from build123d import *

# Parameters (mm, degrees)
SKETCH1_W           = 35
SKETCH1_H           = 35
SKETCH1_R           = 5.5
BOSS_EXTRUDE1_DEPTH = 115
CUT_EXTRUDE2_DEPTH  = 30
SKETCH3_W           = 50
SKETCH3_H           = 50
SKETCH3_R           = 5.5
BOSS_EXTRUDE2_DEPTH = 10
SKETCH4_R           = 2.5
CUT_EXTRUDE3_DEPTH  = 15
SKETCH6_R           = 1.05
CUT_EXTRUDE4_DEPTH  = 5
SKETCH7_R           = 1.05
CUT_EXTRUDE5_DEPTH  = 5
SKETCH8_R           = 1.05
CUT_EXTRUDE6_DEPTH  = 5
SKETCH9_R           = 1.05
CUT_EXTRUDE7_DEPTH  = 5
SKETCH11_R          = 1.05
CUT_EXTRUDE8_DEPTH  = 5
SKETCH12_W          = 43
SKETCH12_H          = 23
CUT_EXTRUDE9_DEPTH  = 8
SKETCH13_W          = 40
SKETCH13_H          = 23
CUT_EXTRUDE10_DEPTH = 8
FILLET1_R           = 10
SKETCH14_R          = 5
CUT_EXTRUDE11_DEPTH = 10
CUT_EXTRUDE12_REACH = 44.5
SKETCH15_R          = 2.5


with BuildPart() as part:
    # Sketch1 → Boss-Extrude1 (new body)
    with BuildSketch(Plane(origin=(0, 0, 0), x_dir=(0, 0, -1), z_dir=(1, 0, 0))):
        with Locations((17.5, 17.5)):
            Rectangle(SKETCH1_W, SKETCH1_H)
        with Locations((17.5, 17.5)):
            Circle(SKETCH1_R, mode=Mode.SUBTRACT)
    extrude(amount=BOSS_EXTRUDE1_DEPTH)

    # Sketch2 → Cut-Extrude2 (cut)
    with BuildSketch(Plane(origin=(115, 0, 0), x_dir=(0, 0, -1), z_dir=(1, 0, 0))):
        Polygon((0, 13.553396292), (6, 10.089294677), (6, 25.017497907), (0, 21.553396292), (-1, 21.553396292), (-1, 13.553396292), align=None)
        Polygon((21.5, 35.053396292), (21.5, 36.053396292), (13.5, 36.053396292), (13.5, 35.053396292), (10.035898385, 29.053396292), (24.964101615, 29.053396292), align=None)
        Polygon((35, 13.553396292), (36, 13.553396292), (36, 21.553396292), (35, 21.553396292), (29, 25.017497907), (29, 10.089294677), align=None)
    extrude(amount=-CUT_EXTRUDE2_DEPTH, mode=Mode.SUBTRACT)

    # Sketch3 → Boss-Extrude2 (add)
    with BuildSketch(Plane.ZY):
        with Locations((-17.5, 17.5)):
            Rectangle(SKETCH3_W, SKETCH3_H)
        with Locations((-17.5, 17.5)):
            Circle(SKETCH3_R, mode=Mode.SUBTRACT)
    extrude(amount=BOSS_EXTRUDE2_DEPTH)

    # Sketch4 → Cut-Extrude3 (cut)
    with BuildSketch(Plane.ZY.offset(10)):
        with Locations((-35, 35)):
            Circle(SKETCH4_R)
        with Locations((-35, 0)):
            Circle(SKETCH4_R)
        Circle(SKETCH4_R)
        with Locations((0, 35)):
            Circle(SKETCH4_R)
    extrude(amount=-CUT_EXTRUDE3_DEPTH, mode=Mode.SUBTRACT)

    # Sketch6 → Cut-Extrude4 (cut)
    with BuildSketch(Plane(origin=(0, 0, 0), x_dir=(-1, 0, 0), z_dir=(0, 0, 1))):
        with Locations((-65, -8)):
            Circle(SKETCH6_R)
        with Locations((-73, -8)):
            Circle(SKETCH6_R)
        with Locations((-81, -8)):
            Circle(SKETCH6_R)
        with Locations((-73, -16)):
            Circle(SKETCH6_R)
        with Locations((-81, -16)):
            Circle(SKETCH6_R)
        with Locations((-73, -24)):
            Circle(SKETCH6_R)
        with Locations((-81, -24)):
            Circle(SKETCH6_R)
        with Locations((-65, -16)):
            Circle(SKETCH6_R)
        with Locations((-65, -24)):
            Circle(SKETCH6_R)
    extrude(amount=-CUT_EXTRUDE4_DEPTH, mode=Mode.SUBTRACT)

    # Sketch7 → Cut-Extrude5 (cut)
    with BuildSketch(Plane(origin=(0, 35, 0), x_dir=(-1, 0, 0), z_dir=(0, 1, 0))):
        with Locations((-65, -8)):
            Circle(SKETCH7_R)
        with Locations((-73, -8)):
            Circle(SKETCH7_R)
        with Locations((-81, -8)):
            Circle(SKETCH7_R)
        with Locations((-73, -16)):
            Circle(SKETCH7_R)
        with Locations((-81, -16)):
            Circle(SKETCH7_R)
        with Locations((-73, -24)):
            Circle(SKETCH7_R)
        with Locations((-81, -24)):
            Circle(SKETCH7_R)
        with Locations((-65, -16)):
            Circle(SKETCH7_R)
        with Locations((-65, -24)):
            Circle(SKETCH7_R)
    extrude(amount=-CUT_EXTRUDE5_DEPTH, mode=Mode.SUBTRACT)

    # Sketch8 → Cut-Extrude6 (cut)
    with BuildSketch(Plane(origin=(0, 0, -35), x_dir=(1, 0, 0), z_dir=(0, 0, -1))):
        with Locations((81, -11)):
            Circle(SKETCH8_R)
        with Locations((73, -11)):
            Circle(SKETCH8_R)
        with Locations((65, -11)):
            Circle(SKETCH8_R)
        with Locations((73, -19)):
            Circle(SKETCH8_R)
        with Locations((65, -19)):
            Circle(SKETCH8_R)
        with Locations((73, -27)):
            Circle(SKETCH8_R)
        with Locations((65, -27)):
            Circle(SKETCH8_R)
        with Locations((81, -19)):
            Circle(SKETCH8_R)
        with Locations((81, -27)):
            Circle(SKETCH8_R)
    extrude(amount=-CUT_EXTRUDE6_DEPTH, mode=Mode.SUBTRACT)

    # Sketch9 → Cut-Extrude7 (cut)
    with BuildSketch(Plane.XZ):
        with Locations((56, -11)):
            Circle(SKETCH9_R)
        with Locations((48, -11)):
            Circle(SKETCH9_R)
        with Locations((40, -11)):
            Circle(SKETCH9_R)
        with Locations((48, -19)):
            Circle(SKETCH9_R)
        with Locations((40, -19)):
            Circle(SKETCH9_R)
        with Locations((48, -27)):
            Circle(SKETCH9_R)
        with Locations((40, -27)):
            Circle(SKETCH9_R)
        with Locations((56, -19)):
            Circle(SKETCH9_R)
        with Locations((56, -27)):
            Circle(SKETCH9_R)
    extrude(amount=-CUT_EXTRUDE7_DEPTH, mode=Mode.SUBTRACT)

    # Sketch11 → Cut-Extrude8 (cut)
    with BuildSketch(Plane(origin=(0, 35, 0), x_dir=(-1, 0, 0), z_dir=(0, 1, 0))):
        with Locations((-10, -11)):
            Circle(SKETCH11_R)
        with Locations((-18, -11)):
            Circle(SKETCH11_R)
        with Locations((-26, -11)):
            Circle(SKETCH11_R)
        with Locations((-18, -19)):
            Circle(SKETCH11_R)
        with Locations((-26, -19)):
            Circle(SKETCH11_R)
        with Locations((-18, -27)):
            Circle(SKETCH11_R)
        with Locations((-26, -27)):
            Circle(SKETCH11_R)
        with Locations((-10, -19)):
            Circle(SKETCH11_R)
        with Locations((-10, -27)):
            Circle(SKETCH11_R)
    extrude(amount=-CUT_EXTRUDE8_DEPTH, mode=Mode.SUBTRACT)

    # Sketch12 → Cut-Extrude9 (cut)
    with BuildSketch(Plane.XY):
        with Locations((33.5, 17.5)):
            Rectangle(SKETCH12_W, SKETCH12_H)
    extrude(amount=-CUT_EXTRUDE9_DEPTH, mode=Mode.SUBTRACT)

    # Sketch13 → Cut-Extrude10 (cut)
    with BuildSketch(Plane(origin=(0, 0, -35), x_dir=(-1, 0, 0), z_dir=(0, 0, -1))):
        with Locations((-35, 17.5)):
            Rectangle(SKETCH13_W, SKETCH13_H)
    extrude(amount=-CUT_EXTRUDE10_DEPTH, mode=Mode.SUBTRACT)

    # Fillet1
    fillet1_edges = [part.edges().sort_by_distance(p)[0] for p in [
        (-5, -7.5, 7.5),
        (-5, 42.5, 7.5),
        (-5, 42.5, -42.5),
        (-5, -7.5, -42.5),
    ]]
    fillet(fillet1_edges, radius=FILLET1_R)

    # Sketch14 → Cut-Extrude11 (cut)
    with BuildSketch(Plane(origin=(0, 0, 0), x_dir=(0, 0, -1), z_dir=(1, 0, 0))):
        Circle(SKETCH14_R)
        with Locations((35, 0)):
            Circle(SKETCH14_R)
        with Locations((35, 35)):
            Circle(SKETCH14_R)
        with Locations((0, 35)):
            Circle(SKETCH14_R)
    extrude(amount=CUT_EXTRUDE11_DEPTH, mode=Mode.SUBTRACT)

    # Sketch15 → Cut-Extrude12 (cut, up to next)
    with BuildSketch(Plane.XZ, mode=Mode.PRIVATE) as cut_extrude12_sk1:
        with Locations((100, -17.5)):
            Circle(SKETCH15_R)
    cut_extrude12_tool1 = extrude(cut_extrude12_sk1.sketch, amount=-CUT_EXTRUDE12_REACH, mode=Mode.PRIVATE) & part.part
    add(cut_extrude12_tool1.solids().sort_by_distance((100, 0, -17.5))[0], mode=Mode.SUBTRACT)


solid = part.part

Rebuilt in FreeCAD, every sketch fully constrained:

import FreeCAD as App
import Part
import Sketcher

V = App.Vector
Q = App.Units.Quantity


def edges_at(feature, points):
    """Names of the edges that pass closest to the given points."""
    edges = feature.Shape.Edges
    near = lambda p: min(range(len(edges)), key=lambda i: edges[i].distToShape(Part.Vertex(*p))[0])
    return sorted({f"Edge{near(p) + 1}" for p in points})

doc = App.newDocument("Part")
params = doc.addObject("Spreadsheet::Sheet", "Params")
for row, (alias, value) in enumerate([
    ("sketch1_diameter", "11 mm"),
    ("sketch1_width", "35 mm"),
    ("pad1_length", "115 mm"),
    ("sketch2_width", "8 mm"),
    ("sketch2_width2", "1 mm"),
    ("pocket1_length", "30 mm"),
    ("sketch3_diameter", "11 mm"),
    ("sketch3_width", "50 mm"),
    ("pad2_length", "10 mm"),
    ("sketch4_diameter", "5 mm"),
    ("pocket2_length", "15 mm"),
    ("sketch5_diameter", "2.1 mm"),
    ("pocket3_length", "5 mm"),
    ("sketch6_diameter", "2.1 mm"),
    ("pocket4_length", "5 mm"),
    ("sketch7_diameter", "2.1 mm"),
    ("pocket5_length", "5 mm"),
    ("sketch8_diameter", "2.1 mm"),
    ("pocket6_length", "5 mm"),
    ("sketch9_diameter", "2.1 mm"),
    ("pocket7_length", "5 mm"),
    ("sketch10_width", "43 mm"),
    ("sketch10_height", "23 mm"),
    ("pocket8_length", "8 mm"),
    ("sketch11_width", "40 mm"),
    ("sketch11_height", "23 mm"),
    ("pocket9_length", "8 mm"),
    ("fillet_radius", "10 mm"),
    ("sketch12_diameter", "10 mm"),
    ("pocket10_length", "10 mm"),
    ("sketch13_diameter", "5 mm"),
], start=1):
    params.set(f"A{row}", alias)
    params.set(f"B{row}", "=" + value)
    params.setAlias(f"B{row}", alias)

body = doc.addObject("PartDesign::Body", "Body")

# Sketch on YZ plane
sketch1 = doc.addObject("Sketcher::SketchObject", "Sketch")
body.addObject(sketch1)
sketch1.AttachmentSupport = (doc.YZ_Plane, [""])
sketch1.MapMode = "FlatFace"
sketch1.addGeometry(Part.LineSegment(V(35, 0, 0), V(0, 0, 0)), False)
sketch1.addGeometry(Part.LineSegment(V(0, 0, 0), V(0, -35, 0)), False)
sketch1.addGeometry(Part.LineSegment(V(0, -35, 0), V(35, -35, 0)), False)
sketch1.addGeometry(Part.LineSegment(V(35, -35, 0), V(35, 0, 0)), False)
sketch1.addGeometry(Part.Circle(V(17.5, -17.5, 0), V(0, 0, 1), 5.5), False)
sketch1.addConstraint(Sketcher.Constraint("Coincident", 0, 2, 1, 1))
sketch1.addConstraint(Sketcher.Constraint("Coincident", 1, 2, 2, 1))
sketch1.addConstraint(Sketcher.Constraint("Coincident", 2, 2, 3, 1))
sketch1.addConstraint(Sketcher.Constraint("Coincident", 3, 2, 0, 1))
sketch1.addConstraint(Sketcher.Constraint("Horizontal", 0))
sketch1.addConstraint(Sketcher.Constraint("Vertical", 1))
sketch1.addConstraint(Sketcher.Constraint("Horizontal", 2))
sketch1.addConstraint(Sketcher.Constraint("Vertical", 3))
sketch1.addConstraint(Sketcher.Constraint("Coincident", 0, 2, -1, 1))
sketch1.addConstraint(Sketcher.Constraint("Equal", 2, 1))
sketch1.addConstraint(Sketcher.Constraint("Diameter", 4, 11.0))
sketch1.addConstraint(Sketcher.Constraint("DistanceX", 0, 2, 0, 1, 35.0))
sketch1.addConstraint(Sketcher.Constraint("DistanceX", -1, 1, 4, 3, 17.5))
sketch1.addConstraint(Sketcher.Constraint("DistanceY", 4, 3, -1, 1, 17.5))
sketch1.setExpression("Constraints[10]", "Params.sketch1_diameter")
sketch1.setExpression("Constraints[11]", "Params.sketch1_width")
pad1 = doc.addObject("PartDesign::Pad", "Pad")
body.addObject(pad1)
pad1.Profile = sketch1
pad1.setExpression("Length", "Params.pad1_length")

# Sketch on YZ plane
sketch2 = doc.addObject("Sketcher::SketchObject", "Sketch001")
body.addObject(sketch2)
sketch2.AttachmentSupport = (doc.YZ_Plane, [""])
sketch2.MapMode = "FlatFace"
sketch2.AttachmentOffset = App.Placement(V(0, 0, 115), App.Rotation())
sketch2.addGeometry(Part.LineSegment(V(13.553396, 0, 0), V(10.089295, -6, 0)), False)
sketch2.addGeometry(Part.LineSegment(V(10.089295, -6, 0), V(25.017498, -6, 0)), False)
sketch2.addGeometry(Part.LineSegment(V(25.017498, -6, 0), V(21.553396, 0, 0)), False)
sketch2.addGeometry(Part.LineSegment(V(21.553396, 0, 0), V(21.553396, 1, 0)), False)
sketch2.addGeometry(Part.LineSegment(V(21.553396, 1, 0), V(13.553396, 1, 0)), False)
sketch2.addGeometry(Part.LineSegment(V(13.553396, 1, 0), V(13.553396, 0, 0)), False)
sketch2.addGeometry(Part.LineSegment(V(35.053396, -21.5, 0), V(36.053396, -21.5, 0)), False)
sketch2.addGeometry(Part.LineSegment(V(36.053396, -21.5, 0), V(36.053396, -13.5, 0)), False)
sketch2.addGeometry(Part.LineSegment(V(36.053396, -13.5, 0), V(35.053396, -13.5, 0)), False)
sketch2.addGeometry(Part.LineSegment(V(35.053396, -13.5, 0), V(29.053396, -10.035898, 0)), False)
sketch2.addGeometry(Part.LineSegment(V(29.053396, -10.035898, 0), V(29.053396, -24.964102, 0)), False)
sketch2.addGeometry(Part.LineSegment(V(29.053396, -24.964102, 0), V(35.053396, -21.5, 0)), False)
sketch2.addGeometry(Part.LineSegment(V(13.553396, -35, 0), V(13.553396, -36, 0)), False)
sketch2.addGeometry(Part.LineSegment(V(13.553396, -36, 0), V(21.553396, -36, 0)), False)
sketch2.addGeometry(Part.LineSegment(V(21.553396, -36, 0), V(21.553396, -35, 0)), False)
sketch2.addGeometry(Part.LineSegment(V(21.553396, -35, 0), V(25.017498, -29, 0)), False)
sketch2.addGeometry(Part.LineSegment(V(25.017498, -29, 0), V(10.089295, -29, 0)), False)
sketch2.addGeometry(Part.LineSegment(V(10.089295, -29, 0), V(13.553396, -35, 0)), False)
sketch2.addConstraint(Sketcher.Constraint("Coincident", 0, 2, 1, 1))
sketch2.addConstraint(Sketcher.Constraint("Coincident", 1, 2, 2, 1))
sketch2.addConstraint(Sketcher.Constraint("Coincident", 2, 2, 3, 1))
sketch2.addConstraint(Sketcher.Constraint("Coincident", 3, 2, 4, 1))
sketch2.addConstraint(Sketcher.Constraint("Coincident", 4, 2, 5, 1))
sketch2.addConstraint(Sketcher.Constraint("Coincident", 5, 2, 0, 1))
sketch2.addConstraint(Sketcher.Constraint("Coincident", 6, 2, 7, 1))
sketch2.addConstraint(Sketcher.Constraint("Coincident", 7, 2, 8, 1))
sketch2.addConstraint(Sketcher.Constraint("Coincident", 8, 2, 9, 1))
sketch2.addConstraint(Sketcher.Constraint("Coincident", 9, 2, 10, 1))
sketch2.addConstraint(Sketcher.Constraint("Coincident", 10, 2, 11, 1))
sketch2.addConstraint(Sketcher.Constraint("Coincident", 11, 2, 6, 1))
sketch2.addConstraint(Sketcher.Constraint("Coincident", 12, 2, 13, 1))
sketch2.addConstraint(Sketcher.Constraint("Coincident", 13, 2, 14, 1))
sketch2.addConstraint(Sketcher.Constraint("Coincident", 14, 2, 15, 1))
sketch2.addConstraint(Sketcher.Constraint("Coincident", 15, 2, 16, 1))
sketch2.addConstraint(Sketcher.Constraint("Coincident", 16, 2, 17, 1))
sketch2.addConstraint(Sketcher.Constraint("Coincident", 17, 2, 12, 1))
sketch2.addConstraint(Sketcher.Constraint("Horizontal", 1))
sketch2.addConstraint(Sketcher.Constraint("Vertical", 3))
sketch2.addConstraint(Sketcher.Constraint("Horizontal", 4))
sketch2.addConstraint(Sketcher.Constraint("Vertical", 5))
sketch2.addConstraint(Sketcher.Constraint("Horizontal", 6))
sketch2.addConstraint(Sketcher.Constraint("Vertical", 7))
sketch2.addConstraint(Sketcher.Constraint("Horizontal", 8))
sketch2.addConstraint(Sketcher.Constraint("Vertical", 10))
sketch2.addConstraint(Sketcher.Constraint("Vertical", 12))
sketch2.addConstraint(Sketcher.Constraint("Horizontal", 13))
sketch2.addConstraint(Sketcher.Constraint("Vertical", 14))
sketch2.addConstraint(Sketcher.Constraint("Horizontal", 16))
sketch2.addConstraint(Sketcher.Constraint("PointOnObject", 2, 2, -1))
sketch2.addConstraint(Sketcher.Constraint("PointOnObject", 5, 2, -1))
sketch2.addConstraint(Sketcher.Constraint("Perpendicular", 0, 9))
sketch2.addConstraint(Sketcher.Constraint("Perpendicular", 2, 11))
sketch2.addConstraint(Sketcher.Constraint("Perpendicular", 9, 15))
sketch2.addConstraint(Sketcher.Constraint("Perpendicular", 11, 17))
sketch2.addConstraint(Sketcher.Constraint("Horizontal", 14, 2, 17, 2))
sketch2.addConstraint(Sketcher.Constraint("Vertical", 8, 2, 11, 2))
sketch2.addConstraint(Sketcher.Constraint("Vertical", 5, 2, 12, 2))
sketch2.addConstraint(Sketcher.Constraint("Vertical", 3, 2, 13, 2))
sketch2.addConstraint(Sketcher.Constraint("Vertical", 1, 2, 15, 2))
sketch2.addConstraint(Sketcher.Constraint("Vertical", 0, 2, 16, 2))
sketch2.addConstraint(Sketcher.Constraint("Equal", 8, 3))
sketch2.addConstraint(Sketcher.Constraint("Equal", 13, 7))
sketch2.addConstraint(Sketcher.Constraint("Equal", 16, 10))
sketch2.addConstraint(Sketcher.Constraint("Equal", 5, 12))
sketch2.addConstraint(Sketcher.Constraint("DistanceX", 4, 2, 4, 1, 8.0))
sketch2.addConstraint(Sketcher.Constraint("DistanceX", 6, 1, 6, 2, 1.0))
sketch2.addConstraint(Sketcher.Constraint("Angle", 0, Q("-120 deg")))
sketch2.addConstraint(Sketcher.Constraint("DistanceY", 0, 2, -1, 1, 6.0))
sketch2.addConstraint(Sketcher.Constraint("DistanceY", 12, 2, -1, 1, 36.0))
sketch2.addConstraint(Sketcher.Constraint("DistanceY", 6, 2, -1, 1, 21.5))
sketch2.addConstraint(Sketcher.Constraint("DistanceX", 2, 2, 6, 2, 14.5))
sketch2.addConstraint(Sketcher.Constraint("DistanceX", -1, 1, 0, 2, 10.089295))
sketch2.setExpression("Constraints[46]", "Params.sketch2_width")
sketch2.setExpression("Constraints[47]", "Params.sketch2_width2")
pocket1 = doc.addObject("PartDesign::Pocket", "Pocket")
body.addObject(pocket1)
pocket1.Profile = sketch2
pocket1.setExpression("Length", "Params.pocket1_length")

# Sketch on YZ plane
sketch3 = doc.addObject("Sketcher::SketchObject", "Sketch002")
body.addObject(sketch3)
sketch3.AttachmentSupport = (doc.YZ_Plane, [""])
sketch3.MapMode = "FlatFace"
sketch3.addGeometry(Part.LineSegment(V(42.5, -42.5, 0), V(-7.5, -42.5, 0)), False)
sketch3.addGeometry(Part.LineSegment(V(-7.5, -42.5, 0), V(-7.5, 7.5, 0)), False)
sketch3.addGeometry(Part.LineSegment(V(-7.5, 7.5, 0), V(42.5, 7.5, 0)), False)
sketch3.addGeometry(Part.LineSegment(V(42.5, 7.5, 0), V(42.5, -42.5, 0)), False)
sketch3.addGeometry(Part.Circle(V(17.5, -17.5, 0), V(0, 0, 1), 5.5), False)
sketch3.addConstraint(Sketcher.Constraint("Coincident", 0, 2, 1, 1))
sketch3.addConstraint(Sketcher.Constraint("Coincident", 1, 2, 2, 1))
sketch3.addConstraint(Sketcher.Constraint("Coincident", 2, 2, 3, 1))
sketch3.addConstraint(Sketcher.Constraint("Coincident", 3, 2, 0, 1))
sketch3.addConstraint(Sketcher.Constraint("Horizontal", 0))
sketch3.addConstraint(Sketcher.Constraint("Vertical", 1))
sketch3.addConstraint(Sketcher.Constraint("Horizontal", 2))
sketch3.addConstraint(Sketcher.Constraint("Vertical", 3))
sketch3.addConstraint(Sketcher.Constraint("Equal", 2, 1))
sketch3.addConstraint(Sketcher.Constraint("Diameter", 4, 11.0))
sketch3.addConstraint(Sketcher.Constraint("DistanceX", 0, 2, 0, 1, 50.0))
sketch3.addConstraint(Sketcher.Constraint("DistanceX", 0, 2, 4, 3, 25.0))
sketch3.addConstraint(Sketcher.Constraint("DistanceY", 0, 2, 4, 3, 25.0))
sketch3.addConstraint(Sketcher.Constraint("DistanceX", -1, 1, 4, 3, 17.5))
sketch3.addConstraint(Sketcher.Constraint("DistanceY", 4, 3, -1, 1, 17.5))
sketch3.setExpression("Constraints[9]", "Params.sketch3_diameter")
sketch3.setExpression("Constraints[10]", "Params.sketch3_width")
pad2 = doc.addObject("PartDesign::Pad", "Pad001")
body.addObject(pad2)
pad2.Profile = sketch3
pad2.setExpression("Length", "Params.pad2_length")
pad2.Reversed = True

# Sketch on YZ plane
sketch4 = doc.addObject("Sketcher::SketchObject", "Sketch003")
body.addObject(sketch4)
sketch4.AttachmentSupport = (doc.YZ_Plane, [""])
sketch4.MapMode = "FlatFace"
sketch4.AttachmentOffset = App.Placement(V(0, 0, -10), App.Rotation())
sketch4.addGeometry(Part.Circle(V(35, -35, 0), V(0, 0, 1), 2.5), False)
sketch4.addGeometry(Part.Circle(V(0, -35, 0), V(0, 0, 1), 2.5), False)
sketch4.addGeometry(Part.Circle(V(0, 0, 0), V(0, 0, 1), 2.5), False)
sketch4.addGeometry(Part.Circle(V(35, 0, 0), V(0, 0, 1), 2.5), False)
sketch4.addConstraint(Sketcher.Constraint("Coincident", 2, 3, -1, 1))
sketch4.addConstraint(Sketcher.Constraint("Equal", 0, 1))
sketch4.addConstraint(Sketcher.Constraint("Equal", 1, 2))
sketch4.addConstraint(Sketcher.Constraint("Equal", 2, 3))
sketch4.addConstraint(Sketcher.Constraint("PointOnObject", 1, 3, -2))
sketch4.addConstraint(Sketcher.Constraint("PointOnObject", 3, 3, -1))
sketch4.addConstraint(Sketcher.Constraint("Horizontal", 0, 3, 1, 3))
sketch4.addConstraint(Sketcher.Constraint("Vertical", 0, 3, 3, 3))
sketch4.addConstraint(Sketcher.Constraint("Diameter", 0, 5.0))
sketch4.addConstraint(Sketcher.Constraint("DistanceX", -1, 1, 0, 3, 35.0))
sketch4.addConstraint(Sketcher.Constraint("DistanceY", 0, 3, -1, 1, 35.0))
sketch4.setExpression("Constraints[8]", "Params.sketch4_diameter")
pocket2 = doc.addObject("PartDesign::Pocket", "Pocket001")
body.addObject(pocket2)
pocket2.Profile = sketch4
pocket2.setExpression("Length", "Params.pocket2_length")
pocket2.Reversed = True

# Sketch on XY plane
sketch5 = doc.addObject("Sketcher::SketchObject", "Sketch004")
body.addObject(sketch5)
sketch5.AttachmentSupport = (doc.XY_Plane, [""])
sketch5.MapMode = "FlatFace"
sketch5.addGeometry(Part.Circle(V(65, 8, 0), V(0, 0, 1), 1.05), False)
sketch5.addGeometry(Part.Circle(V(73, 8, 0), V(0, 0, 1), 1.05), False)
sketch5.addGeometry(Part.Circle(V(81, 8, 0), V(0, 0, 1), 1.05), False)
sketch5.addGeometry(Part.Circle(V(73, 16, 0), V(0, 0, 1), 1.05), False)
sketch5.addGeometry(Part.Circle(V(81, 16, 0), V(0, 0, 1), 1.05), False)
sketch5.addGeometry(Part.Circle(V(73, 24, 0), V(0, 0, 1), 1.05), False)
sketch5.addGeometry(Part.Circle(V(81, 24, 0), V(0, 0, 1), 1.05), False)
sketch5.addGeometry(Part.Circle(V(65, 16, 0), V(0, 0, 1), 1.05), False)
sketch5.addGeometry(Part.Circle(V(65, 24, 0), V(0, 0, 1), 1.05), False)
sketch5.addConstraint(Sketcher.Constraint("Equal", 0, 1))
sketch5.addConstraint(Sketcher.Constraint("Equal", 1, 2))
sketch5.addConstraint(Sketcher.Constraint("Equal", 2, 3))
sketch5.addConstraint(Sketcher.Constraint("Equal", 3, 4))
sketch5.addConstraint(Sketcher.Constraint("Equal", 4, 5))
sketch5.addConstraint(Sketcher.Constraint("Equal", 5, 6))
sketch5.addConstraint(Sketcher.Constraint("Equal", 6, 7))
sketch5.addConstraint(Sketcher.Constraint("Equal", 7, 8))
sketch5.addConstraint(Sketcher.Constraint("Horizontal", 0, 3, 1, 3))
sketch5.addConstraint(Sketcher.Constraint("Horizontal", 1, 3, 2, 3))
sketch5.addConstraint(Sketcher.Constraint("Horizontal", 3, 3, 4, 3))
sketch5.addConstraint(Sketcher.Constraint("Horizontal", 5, 3, 6, 3))
sketch5.addConstraint(Sketcher.Constraint("Horizontal", 4, 3, 7, 3))
sketch5.addConstraint(Sketcher.Constraint("Horizontal", 6, 3, 8, 3))
sketch5.addConstraint(Sketcher.Constraint("Vertical", 1, 3, 3, 3))
sketch5.addConstraint(Sketcher.Constraint("Vertical", 2, 3, 4, 3))
sketch5.addConstraint(Sketcher.Constraint("Vertical", 3, 3, 5, 3))
sketch5.addConstraint(Sketcher.Constraint("Vertical", 4, 3, 6, 3))
sketch5.addConstraint(Sketcher.Constraint("Vertical", 0, 3, 7, 3))
sketch5.addConstraint(Sketcher.Constraint("Vertical", 7, 3, 8, 3))
sketch5.addConstraint(Sketcher.Constraint("Diameter", 0, 2.1))
sketch5.addConstraint(Sketcher.Constraint("DistanceX", -1, 1, 0, 3, 65.0))
sketch5.addConstraint(Sketcher.Constraint("DistanceY", -1, 1, 0, 3, 8.0))
sketch5.addConstraint(Sketcher.Constraint("DistanceX", -1, 1, 1, 3, 73.0))
sketch5.addConstraint(Sketcher.Constraint("DistanceX", -1, 1, 2, 3, 81.0))
sketch5.addConstraint(Sketcher.Constraint("DistanceY", -1, 1, 3, 3, 16.0))
sketch5.addConstraint(Sketcher.Constraint("DistanceY", -1, 1, 5, 3, 24.0))
sketch5.setExpression("Constraints[20]", "Params.sketch5_diameter")
pocket3 = doc.addObject("PartDesign::Pocket", "Pocket002")
body.addObject(pocket3)
pocket3.Profile = sketch5
pocket3.setExpression("Length", "Params.pocket3_length")

# Sketch on XZ plane
sketch6 = doc.addObject("Sketcher::SketchObject", "Sketch005")
body.addObject(sketch6)
sketch6.AttachmentSupport = (doc.XZ_Plane, [""])
sketch6.MapMode = "FlatFace"
sketch6.AttachmentOffset = App.Placement(V(0, 0, -35), App.Rotation())
sketch6.addGeometry(Part.Circle(V(65, -8, 0), V(0, 0, 1), 1.05), False)
sketch6.addGeometry(Part.Circle(V(73, -8, 0), V(0, 0, 1), 1.05), False)
sketch6.addGeometry(Part.Circle(V(81, -8, 0), V(0, 0, 1), 1.05), False)
sketch6.addGeometry(Part.Circle(V(73, -16, 0), V(0, 0, 1), 1.05), False)
sketch6.addGeometry(Part.Circle(V(81, -16, 0), V(0, 0, 1), 1.05), False)
sketch6.addGeometry(Part.Circle(V(73, -24, 0), V(0, 0, 1), 1.05), False)
sketch6.addGeometry(Part.Circle(V(81, -24, 0), V(0, 0, 1), 1.05), False)
sketch6.addGeometry(Part.Circle(V(65, -16, 0), V(0, 0, 1), 1.05), False)
sketch6.addGeometry(Part.Circle(V(65, -24, 0), V(0, 0, 1), 1.05), False)
sketch6.addConstraint(Sketcher.Constraint("Equal", 0, 1))
sketch6.addConstraint(Sketcher.Constraint("Equal", 1, 2))
sketch6.addConstraint(Sketcher.Constraint("Equal", 2, 3))
sketch6.addConstraint(Sketcher.Constraint("Equal", 3, 4))
sketch6.addConstraint(Sketcher.Constraint("Equal", 4, 5))
sketch6.addConstraint(Sketcher.Constraint("Equal", 5, 6))
sketch6.addConstraint(Sketcher.Constraint("Equal", 6, 7))
sketch6.addConstraint(Sketcher.Constraint("Equal", 7, 8))
sketch6.addConstraint(Sketcher.Constraint("Horizontal", 0, 3, 1, 3))
sketch6.addConstraint(Sketcher.Constraint("Horizontal", 1, 3, 2, 3))
sketch6.addConstraint(Sketcher.Constraint("Horizontal", 3, 3, 4, 3))
sketch6.addConstraint(Sketcher.Constraint("Horizontal", 5, 3, 6, 3))
sketch6.addConstraint(Sketcher.Constraint("Horizontal", 4, 3, 7, 3))
sketch6.addConstraint(Sketcher.Constraint("Horizontal", 6, 3, 8, 3))
sketch6.addConstraint(Sketcher.Constraint("Vertical", 1, 3, 3, 3))
sketch6.addConstraint(Sketcher.Constraint("Vertical", 2, 3, 4, 3))
sketch6.addConstraint(Sketcher.Constraint("Vertical", 3, 3, 5, 3))
sketch6.addConstraint(Sketcher.Constraint("Vertical", 4, 3, 6, 3))
sketch6.addConstraint(Sketcher.Constraint("Vertical", 0, 3, 7, 3))
sketch6.addConstraint(Sketcher.Constraint("Vertical", 7, 3, 8, 3))
sketch6.addConstraint(Sketcher.Constraint("Diameter", 0, 2.1))
sketch6.addConstraint(Sketcher.Constraint("DistanceX", -1, 1, 0, 3, 65.0))
sketch6.addConstraint(Sketcher.Constraint("DistanceY", 0, 3, -1, 1, 8.0))
sketch6.addConstraint(Sketcher.Constraint("DistanceX", -1, 1, 1, 3, 73.0))
sketch6.addConstraint(Sketcher.Constraint("DistanceX", -1, 1, 2, 3, 81.0))
sketch6.addConstraint(Sketcher.Constraint("DistanceY", 3, 3, -1, 1, 16.0))
sketch6.addConstraint(Sketcher.Constraint("DistanceY", 5, 3, -1, 1, 24.0))
sketch6.setExpression("Constraints[20]", "Params.sketch6_diameter")
pocket4 = doc.addObject("PartDesign::Pocket", "Pocket003")
body.addObject(pocket4)
pocket4.Profile = sketch6
pocket4.setExpression("Length", "Params.pocket4_length")
pocket4.Reversed = True

# Sketch on XY plane
sketch7 = doc.addObject("Sketcher::SketchObject", "Sketch006")
body.addObject(sketch7)
sketch7.AttachmentSupport = (doc.XY_Plane, [""])
sketch7.MapMode = "FlatFace"
sketch7.AttachmentOffset = App.Placement(V(0, 0, -35), App.Rotation())
sketch7.addGeometry(Part.Circle(V(81, 11, 0), V(0, 0, 1), 1.05), False)
sketch7.addGeometry(Part.Circle(V(73, 11, 0), V(0, 0, 1), 1.05), False)
sketch7.addGeometry(Part.Circle(V(65, 11, 0), V(0, 0, 1), 1.05), False)
sketch7.addGeometry(Part.Circle(V(73, 19, 0), V(0, 0, 1), 1.05), False)
sketch7.addGeometry(Part.Circle(V(65, 19, 0), V(0, 0, 1), 1.05), False)
sketch7.addGeometry(Part.Circle(V(73, 27, 0), V(0, 0, 1), 1.05), False)
sketch7.addGeometry(Part.Circle(V(65, 27, 0), V(0, 0, 1), 1.05), False)
sketch7.addGeometry(Part.Circle(V(81, 19, 0), V(0, 0, 1), 1.05), False)
sketch7.addGeometry(Part.Circle(V(81, 27, 0), V(0, 0, 1), 1.05), False)
sketch7.addConstraint(Sketcher.Constraint("Equal", 0, 1))
sketch7.addConstraint(Sketcher.Constraint("Equal", 1, 2))
sketch7.addConstraint(Sketcher.Constraint("Equal", 2, 3))
sketch7.addConstraint(Sketcher.Constraint("Equal", 3, 4))
sketch7.addConstraint(Sketcher.Constraint("Equal", 4, 5))
sketch7.addConstraint(Sketcher.Constraint("Equal", 5, 6))
sketch7.addConstraint(Sketcher.Constraint("Equal", 6, 7))
sketch7.addConstraint(Sketcher.Constraint("Equal", 7, 8))
sketch7.addConstraint(Sketcher.Constraint("Horizontal", 0, 3, 1, 3))
sketch7.addConstraint(Sketcher.Constraint("Horizontal", 1, 3, 2, 3))
sketch7.addConstraint(Sketcher.Constraint("Horizontal", 3, 3, 4, 3))
sketch7.addConstraint(Sketcher.Constraint("Horizontal", 5, 3, 6, 3))
sketch7.addConstraint(Sketcher.Constraint("Horizontal", 4, 3, 7, 3))
sketch7.addConstraint(Sketcher.Constraint("Horizontal", 6, 3, 8, 3))
sketch7.addConstraint(Sketcher.Constraint("Vertical", 1, 3, 3, 3))
sketch7.addConstraint(Sketcher.Constraint("Vertical", 2, 3, 4, 3))
sketch7.addConstraint(Sketcher.Constraint("Vertical", 3, 3, 5, 3))
sketch7.addConstraint(Sketcher.Constraint("Vertical", 4, 3, 6, 3))
sketch7.addConstraint(Sketcher.Constraint("Vertical", 0, 3, 7, 3))
sketch7.addConstraint(Sketcher.Constraint("Vertical", 7, 3, 8, 3))
sketch7.addConstraint(Sketcher.Constraint("Diameter", 0, 2.1))
sketch7.addConstraint(Sketcher.Constraint("DistanceX", -1, 1, 0, 3, 81.0))
sketch7.addConstraint(Sketcher.Constraint("DistanceY", -1, 1, 0, 3, 11.0))
sketch7.addConstraint(Sketcher.Constraint("DistanceX", -1, 1, 1, 3, 73.0))
sketch7.addConstraint(Sketcher.Constraint("DistanceX", -1, 1, 2, 3, 65.0))
sketch7.addConstraint(Sketcher.Constraint("DistanceY", -1, 1, 3, 3, 19.0))
sketch7.addConstraint(Sketcher.Constraint("DistanceY", -1, 1, 5, 3, 27.0))
sketch7.setExpression("Constraints[20]", "Params.sketch7_diameter")
pocket5 = doc.addObject("PartDesign::Pocket", "Pocket004")
body.addObject(pocket5)
pocket5.Profile = sketch7
pocket5.setExpression("Length", "Params.pocket5_length")
pocket5.Reversed = True

# Sketch on XZ plane
sketch8 = doc.addObject("Sketcher::SketchObject", "Sketch007")
body.addObject(sketch8)
sketch8.AttachmentSupport = (doc.XZ_Plane, [""])
sketch8.MapMode = "FlatFace"
sketch8.addGeometry(Part.Circle(V(56, -11, 0), V(0, 0, 1), 1.05), False)
sketch8.addGeometry(Part.Circle(V(48, -11, 0), V(0, 0, 1), 1.05), False)
sketch8.addGeometry(Part.Circle(V(40, -11, 0), V(0, 0, 1), 1.05), False)
sketch8.addGeometry(Part.Circle(V(48, -19, 0), V(0, 0, 1), 1.05), False)
sketch8.addGeometry(Part.Circle(V(40, -19, 0), V(0, 0, 1), 1.05), False)
sketch8.addGeometry(Part.Circle(V(48, -27, 0), V(0, 0, 1), 1.05), False)
sketch8.addGeometry(Part.Circle(V(40, -27, 0), V(0, 0, 1), 1.05), False)
sketch8.addGeometry(Part.Circle(V(56, -19, 0), V(0, 0, 1), 1.05), False)
sketch8.addGeometry(Part.Circle(V(56, -27, 0), V(0, 0, 1), 1.05), False)
sketch8.addConstraint(Sketcher.Constraint("Equal", 0, 1))
sketch8.addConstraint(Sketcher.Constraint("Equal", 1, 2))
sketch8.addConstraint(Sketcher.Constraint("Equal", 2, 3))
sketch8.addConstraint(Sketcher.Constraint("Equal", 3, 4))
sketch8.addConstraint(Sketcher.Constraint("Equal", 4, 5))
sketch8.addConstraint(Sketcher.Constraint("Equal", 5, 6))
sketch8.addConstraint(Sketcher.Constraint("Equal", 6, 7))
sketch8.addConstraint(Sketcher.Constraint("Equal", 7, 8))
sketch8.addConstraint(Sketcher.Constraint("Horizontal", 0, 3, 1, 3))
sketch8.addConstraint(Sketcher.Constraint("Horizontal", 1, 3, 2, 3))
sketch8.addConstraint(Sketcher.Constraint("Horizontal", 3, 3, 4, 3))
sketch8.addConstraint(Sketcher.Constraint("Horizontal", 5, 3, 6, 3))
sketch8.addConstraint(Sketcher.Constraint("Horizontal", 4, 3, 7, 3))
sketch8.addConstraint(Sketcher.Constraint("Horizontal", 6, 3, 8, 3))
sketch8.addConstraint(Sketcher.Constraint("Vertical", 1, 3, 3, 3))
sketch8.addConstraint(Sketcher.Constraint("Vertical", 2, 3, 4, 3))
sketch8.addConstraint(Sketcher.Constraint("Vertical", 3, 3, 5, 3))
sketch8.addConstraint(Sketcher.Constraint("Vertical", 4, 3, 6, 3))
sketch8.addConstraint(Sketcher.Constraint("Vertical", 0, 3, 7, 3))
sketch8.addConstraint(Sketcher.Constraint("Vertical", 7, 3, 8, 3))
sketch8.addConstraint(Sketcher.Constraint("Diameter", 0, 2.1))
sketch8.addConstraint(Sketcher.Constraint("DistanceX", -1, 1, 0, 3, 56.0))
sketch8.addConstraint(Sketcher.Constraint("DistanceY", 0, 3, -1, 1, 11.0))
sketch8.addConstraint(Sketcher.Constraint("DistanceX", -1, 1, 1, 3, 48.0))
sketch8.addConstraint(Sketcher.Constraint("DistanceX", -1, 1, 2, 3, 40.0))
sketch8.addConstraint(Sketcher.Constraint("DistanceY", 3, 3, -1, 1, 19.0))
sketch8.addConstraint(Sketcher.Constraint("DistanceY", 5, 3, -1, 1, 27.0))
sketch8.setExpression("Constraints[20]", "Params.sketch8_diameter")
pocket6 = doc.addObject("PartDesign::Pocket", "Pocket005")
body.addObject(pocket6)
pocket6.Profile = sketch8
pocket6.setExpression("Length", "Params.pocket6_length")

# Sketch on XZ plane
sketch9 = doc.addObject("Sketcher::SketchObject", "Sketch008")
body.addObject(sketch9)
sketch9.AttachmentSupport = (doc.XZ_Plane, [""])
sketch9.MapMode = "FlatFace"
sketch9.AttachmentOffset = App.Placement(V(0, 0, -35), App.Rotation())
sketch9.addGeometry(Part.Circle(V(10, -11, 0), V(0, 0, 1), 1.05), False)
sketch9.addGeometry(Part.Circle(V(18, -11, 0), V(0, 0, 1), 1.05), False)
sketch9.addGeometry(Part.Circle(V(26, -11, 0), V(0, 0, 1), 1.05), False)
sketch9.addGeometry(Part.Circle(V(18, -19, 0), V(0, 0, 1), 1.05), False)
sketch9.addGeometry(Part.Circle(V(26, -19, 0), V(0, 0, 1), 1.05), False)
sketch9.addGeometry(Part.Circle(V(18, -27, 0), V(0, 0, 1), 1.05), False)
sketch9.addGeometry(Part.Circle(V(26, -27, 0), V(0, 0, 1), 1.05), False)
sketch9.addGeometry(Part.Circle(V(10, -19, 0), V(0, 0, 1), 1.05), False)
sketch9.addGeometry(Part.Circle(V(10, -27, 0), V(0, 0, 1), 1.05), False)
sketch9.addConstraint(Sketcher.Constraint("Equal", 0, 1))
sketch9.addConstraint(Sketcher.Constraint("Equal", 1, 2))
sketch9.addConstraint(Sketcher.Constraint("Equal", 2, 3))
sketch9.addConstraint(Sketcher.Constraint("Equal", 3, 4))
sketch9.addConstraint(Sketcher.Constraint("Equal", 4, 5))
sketch9.addConstraint(Sketcher.Constraint("Equal", 5, 6))
sketch9.addConstraint(Sketcher.Constraint("Equal", 6, 7))
sketch9.addConstraint(Sketcher.Constraint("Equal", 7, 8))
sketch9.addConstraint(Sketcher.Constraint("Horizontal", 0, 3, 1, 3))
sketch9.addConstraint(Sketcher.Constraint("Horizontal", 1, 3, 2, 3))
sketch9.addConstraint(Sketcher.Constraint("Horizontal", 3, 3, 4, 3))
sketch9.addConstraint(Sketcher.Constraint("Horizontal", 5, 3, 6, 3))
sketch9.addConstraint(Sketcher.Constraint("Horizontal", 4, 3, 7, 3))
sketch9.addConstraint(Sketcher.Constraint("Horizontal", 6, 3, 8, 3))
sketch9.addConstraint(Sketcher.Constraint("Vertical", 1, 3, 3, 3))
sketch9.addConstraint(Sketcher.Constraint("Vertical", 2, 3, 4, 3))
sketch9.addConstraint(Sketcher.Constraint("Vertical", 3, 3, 5, 3))
sketch9.addConstraint(Sketcher.Constraint("Vertical", 4, 3, 6, 3))
sketch9.addConstraint(Sketcher.Constraint("Vertical", 0, 3, 7, 3))
sketch9.addConstraint(Sketcher.Constraint("Vertical", 7, 3, 8, 3))
sketch9.addConstraint(Sketcher.Constraint("Diameter", 0, 2.1))
sketch9.addConstraint(Sketcher.Constraint("DistanceX", -1, 1, 0, 3, 10.0))
sketch9.addConstraint(Sketcher.Constraint("DistanceY", 0, 3, -1, 1, 11.0))
sketch9.addConstraint(Sketcher.Constraint("DistanceX", -1, 1, 1, 3, 18.0))
sketch9.addConstraint(Sketcher.Constraint("DistanceX", -1, 1, 2, 3, 26.0))
sketch9.addConstraint(Sketcher.Constraint("DistanceY", 3, 3, -1, 1, 19.0))
sketch9.addConstraint(Sketcher.Constraint("DistanceY", 5, 3, -1, 1, 27.0))
sketch9.setExpression("Constraints[20]", "Params.sketch9_diameter")
pocket7 = doc.addObject("PartDesign::Pocket", "Pocket006")
body.addObject(pocket7)
pocket7.Profile = sketch9
pocket7.setExpression("Length", "Params.pocket7_length")
pocket7.Reversed = True

# Sketch on XY plane
sketch10 = doc.addObject("Sketcher::SketchObject", "Sketch009")
body.addObject(sketch10)
sketch10.AttachmentSupport = (doc.XY_Plane, [""])
sketch10.MapMode = "FlatFace"
sketch10.addGeometry(Part.LineSegment(V(12, 29, 0), V(12, 6, 0)), False)
sketch10.addGeometry(Part.LineSegment(V(12, 6, 0), V(55, 6, 0)), False)
sketch10.addGeometry(Part.LineSegment(V(55, 6, 0), V(55, 29, 0)), False)
sketch10.addGeometry(Part.LineSegment(V(55, 29, 0), V(12, 29, 0)), False)
sketch10.addConstraint(Sketcher.Constraint("Coincident", 0, 2, 1, 1))
sketch10.addConstraint(Sketcher.Constraint("Coincident", 1, 2, 2, 1))
sketch10.addConstraint(Sketcher.Constraint("Coincident", 2, 2, 3, 1))
sketch10.addConstraint(Sketcher.Constraint("Coincident", 3, 2, 0, 1))
sketch10.addConstraint(Sketcher.Constraint("Vertical", 0))
sketch10.addConstraint(Sketcher.Constraint("Horizontal", 1))
sketch10.addConstraint(Sketcher.Constraint("Vertical", 2))
sketch10.addConstraint(Sketcher.Constraint("Horizontal", 3))
sketch10.addConstraint(Sketcher.Constraint("DistanceX", 1, 1, 1, 2, 43.0))
sketch10.addConstraint(Sketcher.Constraint("DistanceY", 0, 2, 0, 1, 23.0))
sketch10.addConstraint(Sketcher.Constraint("DistanceX", -1, 1, 0, 2, 12.0))
sketch10.addConstraint(Sketcher.Constraint("DistanceY", -1, 1, 0, 2, 6.0))
sketch10.setExpression("Constraints[8]", "Params.sketch10_width")
sketch10.setExpression("Constraints[9]", "Params.sketch10_height")
pocket8 = doc.addObject("PartDesign::Pocket", "Pocket007")
body.addObject(pocket8)
pocket8.Profile = sketch10
pocket8.setExpression("Length", "Params.pocket8_length")

# Sketch on XY plane
sketch11 = doc.addObject("Sketcher::SketchObject", "Sketch010")
body.addObject(sketch11)
sketch11.AttachmentSupport = (doc.XY_Plane, [""])
sketch11.MapMode = "FlatFace"
sketch11.AttachmentOffset = App.Placement(V(0, 0, -35), App.Rotation())
sketch11.addGeometry(Part.LineSegment(V(55, 29, 0), V(55, 6, 0)), False)
sketch11.addGeometry(Part.LineSegment(V(55, 6, 0), V(15, 6, 0)), False)
sketch11.addGeometry(Part.LineSegment(V(15, 6, 0), V(15, 29, 0)), False)
sketch11.addGeometry(Part.LineSegment(V(15, 29, 0), V(55, 29, 0)), False)
sketch11.addConstraint(Sketcher.Constraint("Coincident", 0, 2, 1, 1))
sketch11.addConstraint(Sketcher.Constraint("Coincident", 1, 2, 2, 1))
sketch11.addConstraint(Sketcher.Constraint("Coincident", 2, 2, 3, 1))
sketch11.addConstraint(Sketcher.Constraint("Coincident", 3, 2, 0, 1))
sketch11.addConstraint(Sketcher.Constraint("Vertical", 0))
sketch11.addConstraint(Sketcher.Constraint("Horizontal", 1))
sketch11.addConstraint(Sketcher.Constraint("Vertical", 2))
sketch11.addConstraint(Sketcher.Constraint("Horizontal", 3))
sketch11.addConstraint(Sketcher.Constraint("DistanceX", 1, 2, 1, 1, 40.0))
sketch11.addConstraint(Sketcher.Constraint("DistanceY", 0, 2, 0, 1, 23.0))
sketch11.addConstraint(Sketcher.Constraint("DistanceX", -1, 1, 0, 2, 55.0))
sketch11.addConstraint(Sketcher.Constraint("DistanceY", -1, 1, 0, 2, 6.0))
sketch11.setExpression("Constraints[8]", "Params.sketch11_width")
sketch11.setExpression("Constraints[9]", "Params.sketch11_height")
pocket9 = doc.addObject("PartDesign::Pocket", "Pocket008")
body.addObject(pocket9)
pocket9.Profile = sketch11
pocket9.setExpression("Length", "Params.pocket9_length")
pocket9.Reversed = True
doc.recompute()

fillet = doc.addObject("PartDesign::Fillet", "Fillet")
body.addObject(fillet)
fillet.Base = (pocket9, edges_at(pocket9, [
    (-5, -7.5, 7.5),
    (-5, 42.5, 7.5),
    (-5, 42.5, -42.5),
    (-5, -7.5, -42.5),
]))
fillet.setExpression("Radius", "Params.fillet_radius")

# Sketch on YZ plane
sketch12 = doc.addObject("Sketcher::SketchObject", "Sketch011")
body.addObject(sketch12)
sketch12.AttachmentSupport = (doc.YZ_Plane, [""])
sketch12.MapMode = "FlatFace"
sketch12.addGeometry(Part.Circle(V(0, 0, 0), V(0, 0, 1), 5), False)
sketch12.addGeometry(Part.Circle(V(0, -35, 0), V(0, 0, 1), 5), False)
sketch12.addGeometry(Part.Circle(V(35, -35, 0), V(0, 0, 1), 5), False)
sketch12.addGeometry(Part.Circle(V(35, 0, 0), V(0, 0, 1), 5), False)
sketch12.addConstraint(Sketcher.Constraint("Coincident", 0, 3, -1, 1))
sketch12.addConstraint(Sketcher.Constraint("Equal", 0, 1))
sketch12.addConstraint(Sketcher.Constraint("Equal", 1, 2))
sketch12.addConstraint(Sketcher.Constraint("Equal", 2, 3))
sketch12.addConstraint(Sketcher.Constraint("PointOnObject", 1, 3, -2))
sketch12.addConstraint(Sketcher.Constraint("PointOnObject", 3, 3, -1))
sketch12.addConstraint(Sketcher.Constraint("Horizontal", 1, 3, 2, 3))
sketch12.addConstraint(Sketcher.Constraint("Vertical", 2, 3, 3, 3))
sketch12.addConstraint(Sketcher.Constraint("Diameter", 0, 10.0))
sketch12.addConstraint(Sketcher.Constraint("DistanceY", 1, 3, -1, 1, 35.0))
sketch12.addConstraint(Sketcher.Constraint("DistanceX", -1, 1, 2, 3, 35.0))
sketch12.setExpression("Constraints[8]", "Params.sketch12_diameter")
pocket10 = doc.addObject("PartDesign::Pocket", "Pocket009")
body.addObject(pocket10)
pocket10.Profile = sketch12
pocket10.setExpression("Length", "Params.pocket10_length")
pocket10.Reversed = True

# Sketch on XZ plane
sketch13 = doc.addObject("Sketcher::SketchObject", "Sketch012")
body.addObject(sketch13)
sketch13.AttachmentSupport = (doc.XZ_Plane, [""])
sketch13.MapMode = "FlatFace"
sketch13.addGeometry(Part.Circle(V(100, -17.5, 0), V(0, 0, 1), 2.5), False)
sketch13.addConstraint(Sketcher.Constraint("Diameter", 0, 5.0))
sketch13.addConstraint(Sketcher.Constraint("DistanceX", -1, 1, 0, 3, 100.0))
sketch13.addConstraint(Sketcher.Constraint("DistanceY", 0, 3, -1, 1, 17.5))
sketch13.setExpression("Constraints[0]", "Params.sketch13_diameter")
pocket11 = doc.addObject("PartDesign::Pocket", "Pocket010")
body.addObject(pocket11)
pocket11.Profile = sketch13
pocket11.Type = "UpToFirst"

doc.recompute()
